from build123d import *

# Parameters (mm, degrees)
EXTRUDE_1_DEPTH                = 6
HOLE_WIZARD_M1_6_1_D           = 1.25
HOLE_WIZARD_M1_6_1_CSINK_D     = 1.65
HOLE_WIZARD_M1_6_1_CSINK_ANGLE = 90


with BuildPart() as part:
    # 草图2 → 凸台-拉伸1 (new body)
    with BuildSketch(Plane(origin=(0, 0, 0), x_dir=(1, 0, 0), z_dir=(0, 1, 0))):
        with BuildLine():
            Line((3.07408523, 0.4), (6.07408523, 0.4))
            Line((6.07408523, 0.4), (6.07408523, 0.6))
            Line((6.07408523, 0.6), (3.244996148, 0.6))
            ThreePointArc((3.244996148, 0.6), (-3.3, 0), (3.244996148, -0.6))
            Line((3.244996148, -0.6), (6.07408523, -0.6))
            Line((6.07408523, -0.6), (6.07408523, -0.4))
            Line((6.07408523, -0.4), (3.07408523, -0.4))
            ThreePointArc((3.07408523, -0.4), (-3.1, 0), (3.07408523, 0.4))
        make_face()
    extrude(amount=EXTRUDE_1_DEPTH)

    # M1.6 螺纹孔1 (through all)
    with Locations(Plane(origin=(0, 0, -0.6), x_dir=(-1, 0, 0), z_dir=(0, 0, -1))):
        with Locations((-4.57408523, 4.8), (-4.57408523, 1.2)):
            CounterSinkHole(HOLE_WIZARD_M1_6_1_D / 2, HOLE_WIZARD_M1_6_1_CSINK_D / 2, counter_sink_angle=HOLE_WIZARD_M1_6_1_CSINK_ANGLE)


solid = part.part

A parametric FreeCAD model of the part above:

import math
import FreeCAD as App
import Part
import Sketcher

V = App.Vector

doc = App.newDocument("Part")
body = doc.addObject("PartDesign::Body", "Body")

# Sketch on XZ plane
sketch1 = doc.addObject("Sketcher::SketchObject", "Sketch")
body.addObject(sketch1)
sketch1.AttachmentSupport = (doc.XZ_Plane, [""])
sketch1.MapMode = "FlatFace"
sketch1.addGeometry(Part.LineSegment(V(3.07, -0.4, 0), V(6.07, -0.4, 0)), False)
sketch1.addGeometry(Part.LineSegment(V(6.07, -0.4, 0), V(6.07, -0.6, 0)), False)
sketch1.addGeometry(Part.LineSegment(V(6.07, -0.6, 0), V(3.24, -0.6, 0)), False)
sketch1.addGeometry(Part.ArcOfCircle(Part.Circle(V(0, 0, 0), V(0, 0, 1), 3.3), math.radians(10), math.radians(350)), False)
sketch1.addGeometry(Part.LineSegment(V(3.24, 0.6, 0), V(6.07, 0.6, 0)), False)
sketch1.addGeometry(Part.LineSegment(V(6.07, 0.6, 0), V(6.07, 0.4, 0)), False)
sketch1.addGeometry(Part.LineSegment(V(6.07, 0.4, 0), V(3.07, 0.4, 0)), False)
sketch1.addGeometry(Part.ArcOfCircle(Part.Circle(V(0, 0, 0), V(0, 0, 1), 3.1), math.radians(7), math.radians(353)), False)
sketch1.addConstraint(Sketcher.Constraint("Coincident", 0, 2, 1, 1))
sketch1.addConstraint(Sketcher.Constraint("Coincident", 1, 2, 2, 1))
sketch1.addConstraint(Sketcher.Constraint("Coincident", 2, 2, 3, 2))
sketch1.addConstraint(Sketcher.Constraint("Coincident", 3, 1, 4, 1))
sketch1.addConstraint(Sketcher.Constraint("Coincident", 4, 2, 5, 1))
sketch1.addConstraint(Sketcher.Constraint("Coincident", 5, 2, 6, 1))
sketch1.addConstraint(Sketcher.Constraint("Coincident", 6, 2, 7, 1))
sketch1.addConstraint(Sketcher.Constraint("Coincident", 7, 2, 0, 1))
sketch1.addConstraint(Sketcher.Constraint("Horizontal", 0))
sketch1.addConstraint(Sketcher.Constraint("Vertical", 1))
sketch1.addConstraint(Sketcher.Constraint("Horizontal", 2))
sketch1.addConstraint(Sketcher.Constraint("Horizontal", 4))
sketch1.addConstraint(Sketcher.Constraint("Vertical", 5))
sketch1.addConstraint(Sketcher.Constraint("Horizontal", 6))
sketch1.addConstraint(Sketcher.Constraint("Coincident", 3, 3, -1, 1))
sketch1.addConstraint(Sketcher.Constraint("Coincident", 7, 3, -1, 1))
sketch1.addConstraint(Sketcher.Constraint("Symmetric", 1, 2, 4, 2, -1))
sketch1.addConstraint(Sketcher.Constraint("Vertical", 6, 2, 7, 2))
sketch1.addConstraint(Sketcher.Constraint("Radius", 3, 3.3))
sketch1.addConstraint(Sketcher.Constraint("Radius", 7, 3.1))
sketch1.addConstraint(Sketcher.Constraint("DistanceX", 0, 1, 0, 2, 3.0))
sketch1.addConstraint(Sketcher.Constraint("DistanceY", 1, 2, 1, 1, 0.2))
sketch1.addConstraint(Sketcher.Constraint("DistanceY", 0, 2, 3, 1, 1.0))
pad1 = doc.addObject("PartDesign::Pad", "Pad")
body.addObject(pad1)
pad1.Profile = sketch1
pad1.Length = 6
pad1.Reversed = True

# Sketch on XY plane
sketch2 = doc.addObject("Sketcher::SketchObject", "Sketch001")
body.addObject(sketch2)
sketch2.AttachmentSupport = (doc.XY_Plane, [""])
sketch2.MapMode = "FlatFace"
sketch2.AttachmentOffset = App.Placement(V(0, 0, -0.6), App.Rotation())
sketch2.addGeometry(Part.Circle(V(4.6, 4.8, 0), V(0, 0, 1), 0.6), False)
sketch2.addGeometry(Part.Circle(V(4.6, 1.2, 0), V(0, 0, 1), 0.6), False)
sketch2.addConstraint(Sketcher.Constraint("Equal", 0, 1))
sketch2.addConstraint(Sketcher.Constraint("Vertical", 0, 3, 1, 3))
sketch2.addConstraint(Sketcher.Constraint("Diameter", 0, 1.25))
sketch2.addConstraint(Sketcher.Constraint("DistanceY", -1, 1, 0, 3, 4.8))
sketch2.addConstraint(Sketcher.Constraint("DistanceY", -1, 1, 1, 3, 1.2))
sketch2.addConstraint(Sketcher.Constraint("DistanceX", -1, 1, 0, 3, 4.574085))
doc.recompute()
hole = doc.addObject("PartDesign::Hole", "Hole")
body.addObject(hole)
hole.Profile = sketch2
hole.ThreadType = "None"
hole.Diameter = 1.25
hole.DepthType = "ThroughAll"
hole.HoleCutType = "Countersink"
hole.HoleCutDiameter = 1.65
hole.HoleCutCountersinkAngle = 90
hole.Reversed = True

doc.recompute()
